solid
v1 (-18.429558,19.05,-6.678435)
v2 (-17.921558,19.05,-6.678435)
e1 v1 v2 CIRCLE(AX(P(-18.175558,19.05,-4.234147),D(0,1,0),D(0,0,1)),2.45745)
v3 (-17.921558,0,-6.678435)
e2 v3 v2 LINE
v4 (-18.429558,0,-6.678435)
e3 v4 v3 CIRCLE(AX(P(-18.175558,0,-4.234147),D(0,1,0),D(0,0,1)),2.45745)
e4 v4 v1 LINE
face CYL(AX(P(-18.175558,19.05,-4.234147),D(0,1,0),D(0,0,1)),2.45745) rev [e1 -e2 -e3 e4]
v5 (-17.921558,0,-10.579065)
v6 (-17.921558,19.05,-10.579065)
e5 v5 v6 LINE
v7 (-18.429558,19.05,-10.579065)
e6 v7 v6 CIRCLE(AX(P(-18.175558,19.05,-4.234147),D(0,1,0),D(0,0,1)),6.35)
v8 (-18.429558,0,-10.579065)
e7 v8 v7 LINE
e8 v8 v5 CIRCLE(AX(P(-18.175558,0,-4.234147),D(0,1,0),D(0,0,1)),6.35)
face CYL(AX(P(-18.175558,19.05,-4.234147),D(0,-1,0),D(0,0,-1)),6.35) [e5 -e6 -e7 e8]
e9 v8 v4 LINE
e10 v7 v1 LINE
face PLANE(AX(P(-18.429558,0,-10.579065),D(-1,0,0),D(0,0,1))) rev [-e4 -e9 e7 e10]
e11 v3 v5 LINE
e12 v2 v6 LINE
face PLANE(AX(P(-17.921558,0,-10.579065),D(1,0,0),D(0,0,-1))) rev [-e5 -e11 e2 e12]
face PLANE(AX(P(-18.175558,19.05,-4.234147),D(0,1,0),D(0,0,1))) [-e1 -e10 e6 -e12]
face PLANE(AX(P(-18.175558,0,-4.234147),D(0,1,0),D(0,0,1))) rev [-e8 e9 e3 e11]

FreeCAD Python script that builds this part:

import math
import FreeCAD as App
import Part
import Sketcher

V = App.Vector
Q = App.Units.Quantity

doc = App.newDocument("Part")
body = doc.addObject("PartDesign::Body", "Body")

# Sketch on XZ plane
sketch1 = body.newObject("Sketcher::SketchObject", "Sketch")
sketch1.AttachmentSupport = (doc.getObject("XZ_Plane"), [""])
sketch1.MapMode = "FlatFace"
sketch1.addGeometry(Part.Circle(V(-18, -4, 0), V(0, 0, 1), 6), False)
sketch1.addConstraint([
    Sketcher.Constraint("Diameter", 0, Q("0.5 in")),
    Sketcher.Constraint("DistanceX", 0, 3, -1, 1, Q("18.175558 mm")),
    Sketcher.Constraint("DistanceY", 0, 3, -1, 1, Q("4.234147 mm")),
])
pad1 = body.newObject("PartDesign::Pad", "Pad")
pad1.Profile = sketch1
pad1.Length = Q("0.75 in")
pad1.Reversed = True

# Sketch on XZ plane
sketch2 = body.newObject("Sketcher::SketchObject", "Sketch001")
sketch2.AttachmentSupport = (doc.getObject("XZ_Plane"), [""])
sketch2.MapMode = "FlatFace"
sketch2.AttachmentOffset = App.Placement(V(0, 0, -0.75 * 25.4), App.Rotation())
sketch2.addGeometry(Part.Circle(V(-18.2, -4.2, 0), V(0, 0, 1), 2.5), False)
sketch2.addConstraint([
    Sketcher.Constraint("Diameter", 0, Q("0.1935 in")),
    Sketcher.Constraint("DistanceX", 0, 3, -1, 1, Q("18.175558 mm")),
    Sketcher.Constraint("DistanceY", 0, 3, -1, 1, Q("4.234147 mm")),
])
doc.recompute()
hole = body.newObject("PartDesign::Hole", "Hole")
hole.Profile = sketch2
hole.ThreadType = "None"
hole.Diameter = Q("0.1935 in")
hole.DepthType = "ThroughAll"
hole.Reversed = True

# Sketch on XZ plane
sketch3 = body.newObject("Sketcher::SketchObject", "Sketch002")
sketch3.AttachmentSupport = (doc.getObject("XZ_Plane"), [""])
sketch3.MapMode = "FlatFace"
sketch3.AttachmentOffset = App.Placement(V(0, 0, -0.75 * 25.4), App.Rotation())
sketch3.addGeometry([
    Part.LineSegment(V(-18.4, -10.6, 0), V(-18.4, -6.7, 0)),
    Part.ArcOfCircle(Part.Circle(V(-18.2, -4.2, 0), V(0, 0, 1), 2.5), math.radians(-95.93), math.radians(-84.07)),
    Part.LineSegment(V(-17.9, -6.7, 0), V(-17.9, -10.6, 0)),
    Part.ArcOfCircle(Part.Circle(V(-18.2, -4.2, 0), V(0, 0, 1), 6.3), math.radians(-92.29), math.radians(-87.71)),
], False)
sketch3.addConstraint([
    Sketcher.Constraint("Coincident", 0, 2, 1, 1),
    Sketcher.Constraint("Coincident", 1, 2, 2, 1),
    Sketcher.Constraint("Coincident", 2, 2, 3, 2),
    Sketcher.Constraint("Coincident", 3, 1, 0, 1),
    Sketcher.Constraint("Vertical", 0),
    Sketcher.Constraint("Vertical", 2),
    Sketcher.Constraint("Coincident", 3, 3, 1, 3),
    Sketcher.Constraint("Horizontal", 0, 2, 1, 2),
    Sketcher.Constraint("Radius", 3, Q("0.25 in")),
    Sketcher.Constraint("DistanceX", 0, 2, 3, 3, Q("0.01 in")),
    Sketcher.Constraint("Radius", 1, Q("2.45745 mm")),
    Sketcher.Constraint("DistanceX", 1, 3, -1, 1, Q("18.175558 mm")),
    Sketcher.Constraint("DistanceY", 1, 3, -1, 1, Q("4.234147 mm")),
])
pocket1 = body.newObject("PartDesign::Pocket", "Pocket")
pocket1.Profile = sketch3
pocket1.Type = "ThroughAll"
pocket1.Reversed = True

doc.recompute()
